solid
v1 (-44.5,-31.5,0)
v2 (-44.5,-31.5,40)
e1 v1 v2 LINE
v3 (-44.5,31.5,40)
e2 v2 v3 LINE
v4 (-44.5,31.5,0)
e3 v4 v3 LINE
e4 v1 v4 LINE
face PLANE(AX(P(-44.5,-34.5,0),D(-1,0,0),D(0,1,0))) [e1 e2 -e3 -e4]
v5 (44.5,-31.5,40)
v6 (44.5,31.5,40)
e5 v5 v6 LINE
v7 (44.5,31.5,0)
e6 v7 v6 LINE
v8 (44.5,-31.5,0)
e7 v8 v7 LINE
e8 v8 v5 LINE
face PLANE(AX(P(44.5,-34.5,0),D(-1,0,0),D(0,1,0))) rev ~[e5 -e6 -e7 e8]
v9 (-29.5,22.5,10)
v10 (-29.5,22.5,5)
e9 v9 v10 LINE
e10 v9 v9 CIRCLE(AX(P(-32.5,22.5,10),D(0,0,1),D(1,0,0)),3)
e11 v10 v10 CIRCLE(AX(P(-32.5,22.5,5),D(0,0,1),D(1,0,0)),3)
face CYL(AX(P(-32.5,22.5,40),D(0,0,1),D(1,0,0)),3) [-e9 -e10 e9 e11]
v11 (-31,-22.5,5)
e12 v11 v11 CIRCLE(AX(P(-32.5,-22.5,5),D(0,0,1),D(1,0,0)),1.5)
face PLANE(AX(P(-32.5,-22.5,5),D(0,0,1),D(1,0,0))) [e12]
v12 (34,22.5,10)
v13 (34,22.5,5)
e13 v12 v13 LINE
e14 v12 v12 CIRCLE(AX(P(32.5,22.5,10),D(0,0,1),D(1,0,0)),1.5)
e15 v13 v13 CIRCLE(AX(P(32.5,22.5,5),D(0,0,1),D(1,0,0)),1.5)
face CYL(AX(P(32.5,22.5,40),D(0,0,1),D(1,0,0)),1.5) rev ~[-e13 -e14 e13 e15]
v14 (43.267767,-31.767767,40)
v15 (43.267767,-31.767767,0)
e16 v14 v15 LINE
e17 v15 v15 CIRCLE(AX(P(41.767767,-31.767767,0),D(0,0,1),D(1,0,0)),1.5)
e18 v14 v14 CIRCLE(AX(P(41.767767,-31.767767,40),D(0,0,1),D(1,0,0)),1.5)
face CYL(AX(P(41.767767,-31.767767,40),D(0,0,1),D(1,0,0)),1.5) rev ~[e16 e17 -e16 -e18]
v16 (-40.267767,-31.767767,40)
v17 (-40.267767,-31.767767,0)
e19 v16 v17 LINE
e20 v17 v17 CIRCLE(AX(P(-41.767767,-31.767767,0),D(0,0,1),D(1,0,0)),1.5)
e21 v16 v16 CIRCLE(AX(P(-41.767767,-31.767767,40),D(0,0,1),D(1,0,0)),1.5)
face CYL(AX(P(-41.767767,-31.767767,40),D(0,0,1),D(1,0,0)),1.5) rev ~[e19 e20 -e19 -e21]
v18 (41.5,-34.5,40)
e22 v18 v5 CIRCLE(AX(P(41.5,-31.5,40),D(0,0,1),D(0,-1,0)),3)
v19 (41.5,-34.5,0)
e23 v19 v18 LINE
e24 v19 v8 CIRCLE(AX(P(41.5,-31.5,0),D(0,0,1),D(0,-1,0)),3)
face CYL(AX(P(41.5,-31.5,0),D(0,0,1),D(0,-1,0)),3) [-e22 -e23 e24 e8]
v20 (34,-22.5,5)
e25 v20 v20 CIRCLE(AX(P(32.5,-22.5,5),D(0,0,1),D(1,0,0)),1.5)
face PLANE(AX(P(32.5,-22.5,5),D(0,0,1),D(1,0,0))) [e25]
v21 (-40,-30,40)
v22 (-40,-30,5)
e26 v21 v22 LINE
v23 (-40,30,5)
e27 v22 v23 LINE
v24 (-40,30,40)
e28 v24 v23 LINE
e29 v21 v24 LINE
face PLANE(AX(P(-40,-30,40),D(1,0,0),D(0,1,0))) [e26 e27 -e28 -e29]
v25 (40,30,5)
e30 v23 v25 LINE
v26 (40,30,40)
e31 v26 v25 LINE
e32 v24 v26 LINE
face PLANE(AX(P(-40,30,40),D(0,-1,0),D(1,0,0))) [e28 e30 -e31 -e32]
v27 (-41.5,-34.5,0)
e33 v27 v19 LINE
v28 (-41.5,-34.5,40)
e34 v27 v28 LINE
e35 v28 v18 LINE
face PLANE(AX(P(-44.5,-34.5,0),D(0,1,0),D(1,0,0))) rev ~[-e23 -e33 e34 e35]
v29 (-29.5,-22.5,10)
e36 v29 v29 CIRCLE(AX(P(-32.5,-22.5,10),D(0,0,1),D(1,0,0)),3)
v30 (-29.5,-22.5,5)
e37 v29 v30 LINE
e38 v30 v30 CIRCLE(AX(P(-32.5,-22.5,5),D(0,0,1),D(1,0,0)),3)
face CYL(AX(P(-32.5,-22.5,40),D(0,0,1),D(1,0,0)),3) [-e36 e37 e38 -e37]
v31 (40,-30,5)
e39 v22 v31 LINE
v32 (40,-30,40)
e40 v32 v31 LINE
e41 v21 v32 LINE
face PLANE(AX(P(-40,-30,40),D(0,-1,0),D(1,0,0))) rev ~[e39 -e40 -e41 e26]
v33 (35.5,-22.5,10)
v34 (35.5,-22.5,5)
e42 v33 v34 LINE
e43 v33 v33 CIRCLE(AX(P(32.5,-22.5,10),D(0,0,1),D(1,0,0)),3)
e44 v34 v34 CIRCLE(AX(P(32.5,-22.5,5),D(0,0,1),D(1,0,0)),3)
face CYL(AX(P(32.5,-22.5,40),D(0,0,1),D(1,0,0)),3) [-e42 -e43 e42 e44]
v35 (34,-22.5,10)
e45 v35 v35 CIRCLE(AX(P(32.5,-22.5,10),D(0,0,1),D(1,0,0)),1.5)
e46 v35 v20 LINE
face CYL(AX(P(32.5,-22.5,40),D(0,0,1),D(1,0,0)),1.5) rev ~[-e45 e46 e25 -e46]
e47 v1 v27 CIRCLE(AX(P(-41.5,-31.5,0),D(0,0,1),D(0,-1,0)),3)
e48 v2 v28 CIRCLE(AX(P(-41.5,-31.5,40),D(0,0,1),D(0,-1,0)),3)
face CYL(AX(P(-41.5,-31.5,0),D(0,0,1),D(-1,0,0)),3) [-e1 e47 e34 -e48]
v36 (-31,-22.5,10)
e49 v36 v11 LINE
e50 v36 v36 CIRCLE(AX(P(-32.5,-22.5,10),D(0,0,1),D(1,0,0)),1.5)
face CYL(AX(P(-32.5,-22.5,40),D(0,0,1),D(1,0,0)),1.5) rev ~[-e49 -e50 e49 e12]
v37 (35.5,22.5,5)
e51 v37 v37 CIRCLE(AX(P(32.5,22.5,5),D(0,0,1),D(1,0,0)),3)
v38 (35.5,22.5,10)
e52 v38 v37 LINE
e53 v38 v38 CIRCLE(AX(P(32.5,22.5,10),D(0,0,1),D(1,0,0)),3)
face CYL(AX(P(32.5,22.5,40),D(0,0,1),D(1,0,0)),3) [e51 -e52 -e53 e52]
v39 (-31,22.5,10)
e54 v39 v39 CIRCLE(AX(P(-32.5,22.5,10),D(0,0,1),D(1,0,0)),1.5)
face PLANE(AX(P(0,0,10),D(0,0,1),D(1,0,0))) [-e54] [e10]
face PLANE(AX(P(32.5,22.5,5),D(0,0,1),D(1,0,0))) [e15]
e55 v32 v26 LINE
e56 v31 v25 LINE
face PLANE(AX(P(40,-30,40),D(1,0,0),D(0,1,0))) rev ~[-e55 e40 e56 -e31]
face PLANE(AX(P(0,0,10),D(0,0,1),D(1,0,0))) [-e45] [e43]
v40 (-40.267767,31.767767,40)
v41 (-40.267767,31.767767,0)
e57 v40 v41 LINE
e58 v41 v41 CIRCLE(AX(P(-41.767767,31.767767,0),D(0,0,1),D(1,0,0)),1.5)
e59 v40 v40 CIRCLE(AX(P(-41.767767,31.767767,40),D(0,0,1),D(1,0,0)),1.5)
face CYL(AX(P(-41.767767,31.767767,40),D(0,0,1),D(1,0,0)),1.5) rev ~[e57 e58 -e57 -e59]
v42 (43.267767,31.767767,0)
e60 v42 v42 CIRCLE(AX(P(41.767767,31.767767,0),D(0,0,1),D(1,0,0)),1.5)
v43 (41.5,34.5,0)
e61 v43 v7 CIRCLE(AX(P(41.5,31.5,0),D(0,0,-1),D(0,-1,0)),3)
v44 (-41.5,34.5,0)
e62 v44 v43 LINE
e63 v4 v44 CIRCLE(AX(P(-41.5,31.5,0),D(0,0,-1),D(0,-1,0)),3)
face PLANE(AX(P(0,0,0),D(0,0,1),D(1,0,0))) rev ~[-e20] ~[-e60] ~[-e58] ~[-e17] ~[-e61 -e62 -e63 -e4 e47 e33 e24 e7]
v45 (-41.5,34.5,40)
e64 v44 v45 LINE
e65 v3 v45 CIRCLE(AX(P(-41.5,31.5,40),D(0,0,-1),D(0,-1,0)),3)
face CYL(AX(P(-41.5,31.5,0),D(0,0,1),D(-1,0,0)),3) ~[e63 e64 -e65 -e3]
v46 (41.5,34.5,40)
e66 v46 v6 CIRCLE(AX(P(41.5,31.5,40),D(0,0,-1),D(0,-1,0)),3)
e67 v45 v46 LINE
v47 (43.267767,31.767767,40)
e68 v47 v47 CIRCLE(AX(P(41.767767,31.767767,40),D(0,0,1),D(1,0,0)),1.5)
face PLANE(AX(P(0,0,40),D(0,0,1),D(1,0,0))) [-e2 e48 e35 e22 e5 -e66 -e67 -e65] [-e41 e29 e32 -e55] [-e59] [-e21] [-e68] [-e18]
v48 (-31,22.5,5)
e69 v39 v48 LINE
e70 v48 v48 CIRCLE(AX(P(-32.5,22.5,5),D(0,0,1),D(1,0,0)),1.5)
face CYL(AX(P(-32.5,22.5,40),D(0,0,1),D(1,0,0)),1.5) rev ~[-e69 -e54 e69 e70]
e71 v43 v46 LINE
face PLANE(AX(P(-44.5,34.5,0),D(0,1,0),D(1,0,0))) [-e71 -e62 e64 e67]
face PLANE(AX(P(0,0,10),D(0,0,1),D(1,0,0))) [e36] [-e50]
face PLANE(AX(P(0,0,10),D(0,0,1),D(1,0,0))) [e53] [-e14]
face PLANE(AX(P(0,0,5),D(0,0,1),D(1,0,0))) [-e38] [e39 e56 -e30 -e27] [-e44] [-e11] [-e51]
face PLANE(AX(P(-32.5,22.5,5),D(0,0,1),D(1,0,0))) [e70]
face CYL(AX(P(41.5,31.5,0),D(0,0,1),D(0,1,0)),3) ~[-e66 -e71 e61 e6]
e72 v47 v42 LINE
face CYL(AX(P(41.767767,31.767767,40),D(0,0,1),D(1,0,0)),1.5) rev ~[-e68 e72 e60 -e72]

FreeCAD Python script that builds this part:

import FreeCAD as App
import Part
import Sketcher

V = App.Vector
Q = App.Units.Quantity


def edges_at(feature, points):
    """Names of the edges that pass closest to the given points."""
    edges = feature.Shape.Edges
    near = lambda p: min(range(len(edges)), key=lambda i: edges[i].distToShape(Part.Vertex(*p))[0])
    return sorted({f"Edge{near(p) + 1}" for p in points})


def add_polygon(sketch, points):
    """Adds a closed chain of lines whose ends are joined by coincident constraints."""
    first, n = sketch.GeometryCount, len(points)
    for a, b in zip(points, points[1:] + points[:1]):
        sketch.addGeometry(Part.LineSegment(App.Vector(*a, 0), App.Vector(*b, 0)), False)
    for i in range(n):
        sketch.addConstraint(Sketcher.Constraint("Coincident", first + i, 2, first + (i + 1) % n, 1))

doc = App.newDocument("Part")
body = doc.addObject("PartDesign::Body", "Body")

# Sketch on XY plane
sketch1 = doc.addObject("Sketcher::SketchObject", "Sketch")
body.addObject(sketch1)
sketch1.AttachmentSupport = (doc.XY_Plane, [""])
sketch1.MapMode = "FlatFace"
add_polygon(sketch1, [(-44, 34), (-44, -34), (44, -34), (44, 34)])  # lines 0-3
sketch1.addConstraint([
    Sketcher.Constraint("Vertical", 0),
    Sketcher.Constraint("Horizontal", 1),
    Sketcher.Constraint("Vertical", 2),
    Sketcher.Constraint("Horizontal", 3),
    Sketcher.Constraint("Symmetric", 0, 2, 2, 2, -1, 1),
    Sketcher.Constraint("DistanceX", 1, 1, 1, 2, Q("89 mm")),
    Sketcher.Constraint("DistanceY", 0, 2, 0, 1, Q("69 mm")),
])
pad1 = doc.addObject("PartDesign::Pad", "Pad")
body.addObject(pad1)
pad1.Profile = sketch1
pad1.Length = 40

# Sketch on XY plane
sketch2 = doc.addObject("Sketcher::SketchObject", "Sketch001")
body.addObject(sketch2)
sketch2.AttachmentSupport = (doc.XY_Plane, [""])
sketch2.MapMode = "FlatFace"
sketch2.AttachmentOffset = App.Placement(V(0, 0, 40), App.Rotation())
add_polygon(sketch2, [(-40, 30), (-40, -30), (40, -30), (40, 30)])  # lines 0-3
sketch2.addGeometry(Part.Circle(V(-32.5, -22.5, 0), V(0, 0, 1), 3), False)  # 4
sketch2.addGeometry(Part.Circle(V(32.5, -22.5, 0), V(0, 0, 1), 3), False)  # 5
sketch2.addGeometry(Part.Circle(V(-32.5, 22.5, 0), V(0, 0, 1), 3), False)  # 6
sketch2.addGeometry(Part.Circle(V(32.5, 22.5, 0), V(0, 0, 1), 3), False)  # 7
sketch2.addGeometry(Part.Circle(V(-32.5, 22.5, 0), V(0, 0, 1), 1.5), False)  # 8
sketch2.addGeometry(Part.Circle(V(32.5, 22.5, 0), V(0, 0, 1), 1.5), False)  # 9
sketch2.addGeometry(Part.Circle(V(32.5, -22.5, 0), V(0, 0, 1), 1.5), False)  # 10
sketch2.addGeometry(Part.Circle(V(-32.5, -22.5, 0), V(0, 0, 1), 1.5), False)  # 11
sketch2.addConstraint([
    Sketcher.Constraint("Vertical", 0),
    Sketcher.Constraint("Horizontal", 1),
    Sketcher.Constraint("Vertical", 2),
    Sketcher.Constraint("Horizontal", 3),
    Sketcher.Constraint("Coincident", 8, 3, 6, 3),
    Sketcher.Constraint("Coincident", 9, 3, 7, 3),
    Sketcher.Constraint("Coincident", 10, 3, 5, 3),
    Sketcher.Constraint("Coincident", 11, 3, 4, 3),
    Sketcher.Constraint("Equal", 4, 5),
    Sketcher.Constraint("Equal", 5, 6),
    Sketcher.Constraint("Equal", 6, 7),
    Sketcher.Constraint("Equal", 8, 9),
    Sketcher.Constraint("Equal", 9, 10),
    Sketcher.Constraint("Equal", 10, 11),
    Sketcher.Constraint("Symmetric", 5, 3, 6, 3, -1, 1),
    Sketcher.Constraint("Symmetric", 4, 3, 7, 3, -1, 1),
    Sketcher.Constraint("Symmetric", 0, 2, 2, 2, -1, 1),
    Sketcher.Constraint("Symmetric", 4, 3, 5, 3, -2),
    Sketcher.Constraint("Diameter", 4, Q("6 mm")),
    Sketcher.Constraint("Diameter", 8, Q("3 mm")),
    Sketcher.Constraint("DistanceX", 1, 1, 1, 2, Q("80 mm")),
    Sketcher.Constraint("DistanceY", 0, 2, 0, 1, Q("60 mm")),
    Sketcher.Constraint("DistanceX", 4, 3, 5, 3, Q("65 mm")),
    Sketcher.Constraint("DistanceY", 4, 3, 6, 3, Q("45 mm")),
])
pocket1 = doc.addObject("PartDesign::Pocket", "Pocket")
body.addObject(pocket1)
pocket1.Profile = sketch2
pocket1.Length = 35

# Sketch on XY plane
sketch3 = doc.addObject("Sketcher::SketchObject", "Sketch002")
body.addObject(sketch3)
sketch3.AttachmentSupport = (doc.XY_Plane, [""])
sketch3.MapMode = "FlatFace"
sketch3.AttachmentOffset = App.Placement(V(0, 0, 40), App.Rotation())
sketch3.addGeometry([
    Part.Circle(V(41.8, 31.8, 0), V(0, 0, 1), 1.5),
    Part.Circle(V(41.8, -31.8, 0), V(0, 0, 1), 1.5),
    Part.Circle(V(-41.8, -31.8, 0), V(0, 0, 1), 1.5),
    Part.Circle(V(-41.8, 31.8, 0), V(0, 0, 1), 1.5),
], False)
sketch3.addConstraint([
    Sketcher.Constraint("Equal", 0, 1),
    Sketcher.Constraint("Equal", 1, 2),
    Sketcher.Constraint("Equal", 2, 3),
    Sketcher.Constraint("Symmetric", 0, 3, 2, 3, -1, 1),
    Sketcher.Constraint("Symmetric", 1, 3, 3, 3, -1, 1),
    Sketcher.Constraint("Symmetric", 1, 3, 2, 3, -2),
    Sketcher.Constraint("Diameter", 0, Q("3 mm")),
    Sketcher.Constraint("DistanceX", -1, 1, 0, 3, Q("41.767767 mm")),
    Sketcher.Constraint("DistanceY", -1, 1, 0, 3, Q("31.767767 mm")),
])
pocket2 = doc.addObject("PartDesign::Pocket", "Pocket001")
body.addObject(pocket2)
pocket2.Profile = sketch3
pocket2.Type = "ThroughAll"

# Sketch on XY plane
sketch4 = doc.addObject("Sketcher::SketchObject", "Sketch003")
body.addObject(sketch4)
sketch4.AttachmentSupport = (doc.XY_Plane, [""])
sketch4.MapMode = "FlatFace"
sketch4.AttachmentOffset = App.Placement(V(0, 0, 40), App.Rotation())
add_polygon(sketch4, [(-38, 28), (-38, -28), (38, -28), (38, 28)])  # lines 0-3
sketch4.addConstraint([
    Sketcher.Constraint("Vertical", 0),
    Sketcher.Constraint("Horizontal", 1),
    Sketcher.Constraint("Vertical", 2),
    Sketcher.Constraint("Horizontal", 3),
    Sketcher.Constraint("Symmetric", 0, 2, 2, 2, -1, 1),
    Sketcher.Constraint("DistanceY", 0, 2, 0, 1, Q("56.42009 mm")),
    Sketcher.Constraint("DistanceX", 1, 1, 1, 2, Q("76.892074 mm")),
])
pocket3 = doc.addObject("PartDesign::Pocket", "Pocket002")
body.addObject(pocket3)
pocket3.Profile = sketch4
pocket3.Length = 30
doc.recompute()

fillet = doc.addObject("PartDesign::Fillet", "Fillet")
body.addObject(fillet)
fillet.Base = (pocket3, edges_at(pocket3, [
    (-44.5, -34.5, 20),
    (44.5, -34.5, 20),
    (44.5, 34.5, 20),
    (-44.5, 34.5, 20),
]))
fillet.Radius = 3

doc.recompute()
